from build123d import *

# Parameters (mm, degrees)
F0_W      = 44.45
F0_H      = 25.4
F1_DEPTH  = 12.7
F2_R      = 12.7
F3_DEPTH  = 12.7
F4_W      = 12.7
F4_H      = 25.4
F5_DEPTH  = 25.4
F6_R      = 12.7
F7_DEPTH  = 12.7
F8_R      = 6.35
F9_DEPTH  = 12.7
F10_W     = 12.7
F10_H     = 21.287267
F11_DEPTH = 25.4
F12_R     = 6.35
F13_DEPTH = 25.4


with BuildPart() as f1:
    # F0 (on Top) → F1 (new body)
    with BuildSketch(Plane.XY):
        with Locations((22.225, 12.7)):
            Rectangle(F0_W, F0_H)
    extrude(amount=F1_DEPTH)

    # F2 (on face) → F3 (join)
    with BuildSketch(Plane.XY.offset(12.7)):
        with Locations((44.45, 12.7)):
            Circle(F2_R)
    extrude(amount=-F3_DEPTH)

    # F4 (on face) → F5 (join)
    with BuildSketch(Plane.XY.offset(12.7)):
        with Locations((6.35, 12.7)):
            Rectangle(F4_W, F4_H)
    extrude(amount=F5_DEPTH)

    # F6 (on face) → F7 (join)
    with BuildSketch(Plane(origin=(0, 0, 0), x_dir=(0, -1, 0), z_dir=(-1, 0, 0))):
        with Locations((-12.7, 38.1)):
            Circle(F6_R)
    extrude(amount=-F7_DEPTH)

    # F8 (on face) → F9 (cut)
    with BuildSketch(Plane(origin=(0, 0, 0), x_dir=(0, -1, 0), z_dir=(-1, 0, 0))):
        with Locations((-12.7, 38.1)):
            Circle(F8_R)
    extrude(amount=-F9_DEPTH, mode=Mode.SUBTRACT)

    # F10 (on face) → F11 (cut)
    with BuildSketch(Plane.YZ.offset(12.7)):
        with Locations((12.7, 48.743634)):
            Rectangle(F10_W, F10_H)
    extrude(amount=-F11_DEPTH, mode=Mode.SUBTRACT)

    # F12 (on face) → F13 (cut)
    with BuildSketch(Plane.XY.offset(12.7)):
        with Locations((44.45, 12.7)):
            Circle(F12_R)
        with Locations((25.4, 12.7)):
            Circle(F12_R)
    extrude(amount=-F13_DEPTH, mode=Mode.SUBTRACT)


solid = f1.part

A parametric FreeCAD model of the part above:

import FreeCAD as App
import Part
import Sketcher
Q = App.Units.Quantity

doc = App.newDocument("Part")
body = doc.addObject("PartDesign::Body", "Body")

# Sketch on XY plane
sketch1 = body.newObject("Sketcher::SketchObject", "Sketch")
sketch1.AttachmentSupport = (doc.getObject("XY_Plane"), [""])
sketch1.MapMode = "FlatFace"
sketch1.addGeometry(Part.LineSegment(App.Vector(0, 25.4, 0), App.Vector(0, 0, 0)), False)
sketch1.addGeometry(Part.LineSegment(App.Vector(0, 0, 0), App.Vector(44.45, 0, 0)), False)
sketch1.addGeometry(Part.LineSegment(App.Vector(44.45, 0, 0), App.Vector(44.45, 25.4, 0)), False)
sketch1.addGeometry(Part.LineSegment(App.Vector(44.45, 25.4, 0), App.Vector(0, 25.4, 0)), False)
sketch1.addConstraint(Sketcher.Constraint("Coincident", 0, 2, 1, 1))
sketch1.addConstraint(Sketcher.Constraint("Coincident", 1, 2, 2, 1))
sketch1.addConstraint(Sketcher.Constraint("Coincident", 2, 2, 3, 1))
sketch1.addConstraint(Sketcher.Constraint("Coincident", 3, 2, 0, 1))
sketch1.addConstraint(Sketcher.Constraint("Vertical", 0))
sketch1.addConstraint(Sketcher.Constraint("Horizontal", 1))
sketch1.addConstraint(Sketcher.Constraint("Vertical", 2))
sketch1.addConstraint(Sketcher.Constraint("Horizontal", 3))
sketch1.addConstraint(Sketcher.Constraint("Coincident", 0, 2, -1, 1))
sketch1.addConstraint(Sketcher.Constraint("DistanceY", 0, 2, 0, 1, Q("1 in")))
sketch1.addConstraint(Sketcher.Constraint("DistanceX", 1, 1, 1, 2, Q("1.75 in")))
pad1 = body.newObject("PartDesign::Pad", "Pad")
pad1.Profile = sketch1
pad1.Length = Q("0.5 in")

# Sketch on XY plane
sketch2 = body.newObject("Sketcher::SketchObject", "Sketch001")
sketch2.AttachmentSupport = (doc.getObject("XY_Plane"), [""])
sketch2.MapMode = "FlatFace"
sketch2.AttachmentOffset = App.Placement(App.Vector(0, 0, 0.5 * 25.4), App.Rotation())
sketch2.addGeometry(Part.Circle(App.Vector(44.45, 12.7, 0), App.Vector(0, 0, 1), 12.7), False)
sketch2.addConstraint(Sketcher.Constraint("Diameter", 0, Q("1 in")))
sketch2.addConstraint(Sketcher.Constraint("DistanceY", -1, 1, 0, 3, Q("0.5 in")))
sketch2.addConstraint(Sketcher.Constraint("DistanceX", -1, 1, 0, 3, Q("1.75 in")))
pad2 = body.newObject("PartDesign::Pad", "Pad001")
pad2.Profile = sketch2
pad2.Length = Q("0.5 in")
pad2.Reversed = True

# Sketch on XY plane
sketch3 = body.newObject("Sketcher::SketchObject", "Sketch002")
sketch3.AttachmentSupport = (doc.getObject("XY_Plane"), [""])
sketch3.MapMode = "FlatFace"
sketch3.AttachmentOffset = App.Placement(App.Vector(0, 0, 0.5 * 25.4), App.Rotation())
sketch3.addGeometry(Part.LineSegment(App.Vector(0, 25.4, 0), App.Vector(0, 0, 0)), False)
sketch3.addGeometry(Part.LineSegment(App.Vector(0, 0, 0), App.Vector(12.7, 0, 0)), False)
sketch3.addGeometry(Part.LineSegment(App.Vector(12.7, 0, 0), App.Vector(12.7, 25.4, 0)), False)
sketch3.addGeometry(Part.LineSegment(App.Vector(12.7, 25.4, 0), App.Vector(0, 25.4, 0)), False)
sketch3.addConstraint(Sketcher.Constraint("Coincident", 0, 2, 1, 1))
sketch3.addConstraint(Sketcher.Constraint("Coincident", 1, 2, 2, 1))
sketch3.addConstraint(Sketcher.Constraint("Coincident", 2, 2, 3, 1))
sketch3.addConstraint(Sketcher.Constraint("Coincident", 3, 2, 0, 1))
sketch3.addConstraint(Sketcher.Constraint("Vertical", 0))
sketch3.addConstraint(Sketcher.Constraint("Horizontal", 1))
sketch3.addConstraint(Sketcher.Constraint("Vertical", 2))
sketch3.addConstraint(Sketcher.Constraint("Horizontal", 3))
sketch3.addConstraint(Sketcher.Constraint("Coincident", 0, 2, -1, 1))
sketch3.addConstraint(Sketcher.Constraint("DistanceY", 0, 2, 0, 1, Q("1 in")))
sketch3.addConstraint(Sketcher.Constraint("DistanceX", 1, 1, 1, 2, Q("0.5 in")))
pad3 = body.newObject("PartDesign::Pad", "Pad002")
pad3.Profile = sketch3
pad3.Length = Q("1 in")

# Sketch on YZ plane
sketch4 = body.newObject("Sketcher::SketchObject", "Sketch003")
sketch4.AttachmentSupport = (doc.getObject("YZ_Plane"), [""])
sketch4.MapMode = "FlatFace"
sketch4.addGeometry(Part.Circle(App.Vector(12.7, 38.1, 0), App.Vector(0, 0, 1), 12.7), False)
sketch4.addConstraint(Sketcher.Constraint("Diameter", 0, Q("1 in")))
sketch4.addConstraint(Sketcher.Constraint("DistanceX", -1, 1, 0, 3, Q("0.5 in")))
sketch4.addConstraint(Sketcher.Constraint("DistanceY", -1, 1, 0, 3, Q("1.5 in")))
pad4 = body.newObject("PartDesign::Pad", "Pad003")
pad4.Profile = sketch4
pad4.Length = Q("0.5 in")

# Sketch on YZ plane
sketch5 = body.newObject("Sketcher::SketchObject", "Sketch004")
sketch5.AttachmentSupport = (doc.getObject("YZ_Plane"), [""])
sketch5.MapMode = "FlatFace"
sketch5.addGeometry(Part.Circle(App.Vector(12.7, 38.1, 0), App.Vector(0, 0, 1), 6.35), False)
sketch5.addConstraint(Sketcher.Constraint("Diameter", 0, Q("0.5 in")))
sketch5.addConstraint(Sketcher.Constraint("DistanceX", -1, 1, 0, 3, Q("0.5 in")))
sketch5.addConstraint(Sketcher.Constraint("DistanceY", -1, 1, 0, 3, Q("1.5 in")))
pocket1 = body.newObject("PartDesign::Pocket", "Pocket")
pocket1.Profile = sketch5
pocket1.Length = Q("0.5 in")
pocket1.Reversed = True

# Sketch on YZ plane
sketch6 = body.newObject("Sketcher::SketchObject", "Sketch005")
sketch6.AttachmentSupport = (doc.getObject("YZ_Plane"), [""])
sketch6.MapMode = "FlatFace"
sketch6.AttachmentOffset = App.Placement(App.Vector(0, 0, 0.5 * 25.4), App.Rotation())
sketch6.addGeometry(Part.LineSegment(App.Vector(6.35, 59.387268, 0), App.Vector(6.35, 38.100001, 0)), False)
sketch6.addGeometry(Part.LineSegment(App.Vector(6.35, 38.100001, 0), App.Vector(19.05, 38.100001, 0)), False)
sketch6.addGeometry(Part.LineSegment(App.Vector(19.05, 38.100001, 0), App.Vector(19.05, 59.387268, 0)), False)
sketch6.addGeometry(Part.LineSegment(App.Vector(19.05, 59.387268, 0), App.Vector(6.35, 59.387268, 0)), False)
sketch6.addConstraint(Sketcher.Constraint("Coincident", 0, 2, 1, 1))
sketch6.addConstraint(Sketcher.Constraint("Coincident", 1, 2, 2, 1))
sketch6.addConstraint(Sketcher.Constraint("Coincident", 2, 2, 3, 1))
sketch6.addConstraint(Sketcher.Constraint("Coincident", 3, 2, 0, 1))
sketch6.addConstraint(Sketcher.Constraint("Vertical", 0))
sketch6.addConstraint(Sketcher.Constraint("Horizontal", 1))
sketch6.addConstraint(Sketcher.Constraint("Vertical", 2))
sketch6.addConstraint(Sketcher.Constraint("Horizontal", 3))
sketch6.addConstraint(Sketcher.Constraint("DistanceX", 1, 1, 1, 2, Q("0.5 in")))
sketch6.addConstraint(Sketcher.Constraint("DistanceY", -1, 1, 0, 2, Q("1.5 in")))
sketch6.addConstraint(Sketcher.Constraint("DistanceX", -1, 1, 0, 2, Q("0.25 in")))
sketch6.addConstraint(Sketcher.Constraint("DistanceY", 0, 2, 0, 1, Q("21.287267 mm")))
pocket2 = body.newObject("PartDesign::Pocket", "Pocket001")
pocket2.Profile = sketch6
pocket2.Length = Q("1 in")

# Sketch on XY plane
sketch7 = body.newObject("Sketcher::SketchObject", "Sketch006")
sketch7.AttachmentSupport = (doc.getObject("XY_Plane"), [""])
sketch7.MapMode = "FlatFace"
sketch7.AttachmentOffset = App.Placement(App.Vector(0, 0, 0.5 * 25.4), App.Rotation())
sketch7.addGeometry(Part.Circle(App.Vector(44.45, 12.7, 0), App.Vector(0, 0, 1), 6.35), False)
sketch7.addGeometry(Part.Circle(App.Vector(25.4, 12.7, 0), App.Vector(0, 0, 1), 6.35), False)
sketch7.addConstraint(Sketcher.Constraint("Equal", 0, 1))
sketch7.addConstraint(Sketcher.Constraint("Horizontal", 0, 3, 1, 3))
sketch7.addConstraint(Sketcher.Constraint("Diameter", 0, Q("0.5 in")))
sketch7.addConstraint(Sketcher.Constraint("DistanceX", -1, 1, 1, 3, Q("1 in")))
sketch7.addConstraint(Sketcher.Constraint("DistanceY", -1, 1, 0, 3, Q("0.5 in")))
sketch7.addConstraint(Sketcher.Constraint("DistanceX", -1, 1, 0, 3, Q("1.75 in")))
pocket3 = body.newObject("PartDesign::Pocket", "Pocket002")
pocket3.Profile = sketch7
pocket3.Length = Q("1 in")

doc.recompute()
